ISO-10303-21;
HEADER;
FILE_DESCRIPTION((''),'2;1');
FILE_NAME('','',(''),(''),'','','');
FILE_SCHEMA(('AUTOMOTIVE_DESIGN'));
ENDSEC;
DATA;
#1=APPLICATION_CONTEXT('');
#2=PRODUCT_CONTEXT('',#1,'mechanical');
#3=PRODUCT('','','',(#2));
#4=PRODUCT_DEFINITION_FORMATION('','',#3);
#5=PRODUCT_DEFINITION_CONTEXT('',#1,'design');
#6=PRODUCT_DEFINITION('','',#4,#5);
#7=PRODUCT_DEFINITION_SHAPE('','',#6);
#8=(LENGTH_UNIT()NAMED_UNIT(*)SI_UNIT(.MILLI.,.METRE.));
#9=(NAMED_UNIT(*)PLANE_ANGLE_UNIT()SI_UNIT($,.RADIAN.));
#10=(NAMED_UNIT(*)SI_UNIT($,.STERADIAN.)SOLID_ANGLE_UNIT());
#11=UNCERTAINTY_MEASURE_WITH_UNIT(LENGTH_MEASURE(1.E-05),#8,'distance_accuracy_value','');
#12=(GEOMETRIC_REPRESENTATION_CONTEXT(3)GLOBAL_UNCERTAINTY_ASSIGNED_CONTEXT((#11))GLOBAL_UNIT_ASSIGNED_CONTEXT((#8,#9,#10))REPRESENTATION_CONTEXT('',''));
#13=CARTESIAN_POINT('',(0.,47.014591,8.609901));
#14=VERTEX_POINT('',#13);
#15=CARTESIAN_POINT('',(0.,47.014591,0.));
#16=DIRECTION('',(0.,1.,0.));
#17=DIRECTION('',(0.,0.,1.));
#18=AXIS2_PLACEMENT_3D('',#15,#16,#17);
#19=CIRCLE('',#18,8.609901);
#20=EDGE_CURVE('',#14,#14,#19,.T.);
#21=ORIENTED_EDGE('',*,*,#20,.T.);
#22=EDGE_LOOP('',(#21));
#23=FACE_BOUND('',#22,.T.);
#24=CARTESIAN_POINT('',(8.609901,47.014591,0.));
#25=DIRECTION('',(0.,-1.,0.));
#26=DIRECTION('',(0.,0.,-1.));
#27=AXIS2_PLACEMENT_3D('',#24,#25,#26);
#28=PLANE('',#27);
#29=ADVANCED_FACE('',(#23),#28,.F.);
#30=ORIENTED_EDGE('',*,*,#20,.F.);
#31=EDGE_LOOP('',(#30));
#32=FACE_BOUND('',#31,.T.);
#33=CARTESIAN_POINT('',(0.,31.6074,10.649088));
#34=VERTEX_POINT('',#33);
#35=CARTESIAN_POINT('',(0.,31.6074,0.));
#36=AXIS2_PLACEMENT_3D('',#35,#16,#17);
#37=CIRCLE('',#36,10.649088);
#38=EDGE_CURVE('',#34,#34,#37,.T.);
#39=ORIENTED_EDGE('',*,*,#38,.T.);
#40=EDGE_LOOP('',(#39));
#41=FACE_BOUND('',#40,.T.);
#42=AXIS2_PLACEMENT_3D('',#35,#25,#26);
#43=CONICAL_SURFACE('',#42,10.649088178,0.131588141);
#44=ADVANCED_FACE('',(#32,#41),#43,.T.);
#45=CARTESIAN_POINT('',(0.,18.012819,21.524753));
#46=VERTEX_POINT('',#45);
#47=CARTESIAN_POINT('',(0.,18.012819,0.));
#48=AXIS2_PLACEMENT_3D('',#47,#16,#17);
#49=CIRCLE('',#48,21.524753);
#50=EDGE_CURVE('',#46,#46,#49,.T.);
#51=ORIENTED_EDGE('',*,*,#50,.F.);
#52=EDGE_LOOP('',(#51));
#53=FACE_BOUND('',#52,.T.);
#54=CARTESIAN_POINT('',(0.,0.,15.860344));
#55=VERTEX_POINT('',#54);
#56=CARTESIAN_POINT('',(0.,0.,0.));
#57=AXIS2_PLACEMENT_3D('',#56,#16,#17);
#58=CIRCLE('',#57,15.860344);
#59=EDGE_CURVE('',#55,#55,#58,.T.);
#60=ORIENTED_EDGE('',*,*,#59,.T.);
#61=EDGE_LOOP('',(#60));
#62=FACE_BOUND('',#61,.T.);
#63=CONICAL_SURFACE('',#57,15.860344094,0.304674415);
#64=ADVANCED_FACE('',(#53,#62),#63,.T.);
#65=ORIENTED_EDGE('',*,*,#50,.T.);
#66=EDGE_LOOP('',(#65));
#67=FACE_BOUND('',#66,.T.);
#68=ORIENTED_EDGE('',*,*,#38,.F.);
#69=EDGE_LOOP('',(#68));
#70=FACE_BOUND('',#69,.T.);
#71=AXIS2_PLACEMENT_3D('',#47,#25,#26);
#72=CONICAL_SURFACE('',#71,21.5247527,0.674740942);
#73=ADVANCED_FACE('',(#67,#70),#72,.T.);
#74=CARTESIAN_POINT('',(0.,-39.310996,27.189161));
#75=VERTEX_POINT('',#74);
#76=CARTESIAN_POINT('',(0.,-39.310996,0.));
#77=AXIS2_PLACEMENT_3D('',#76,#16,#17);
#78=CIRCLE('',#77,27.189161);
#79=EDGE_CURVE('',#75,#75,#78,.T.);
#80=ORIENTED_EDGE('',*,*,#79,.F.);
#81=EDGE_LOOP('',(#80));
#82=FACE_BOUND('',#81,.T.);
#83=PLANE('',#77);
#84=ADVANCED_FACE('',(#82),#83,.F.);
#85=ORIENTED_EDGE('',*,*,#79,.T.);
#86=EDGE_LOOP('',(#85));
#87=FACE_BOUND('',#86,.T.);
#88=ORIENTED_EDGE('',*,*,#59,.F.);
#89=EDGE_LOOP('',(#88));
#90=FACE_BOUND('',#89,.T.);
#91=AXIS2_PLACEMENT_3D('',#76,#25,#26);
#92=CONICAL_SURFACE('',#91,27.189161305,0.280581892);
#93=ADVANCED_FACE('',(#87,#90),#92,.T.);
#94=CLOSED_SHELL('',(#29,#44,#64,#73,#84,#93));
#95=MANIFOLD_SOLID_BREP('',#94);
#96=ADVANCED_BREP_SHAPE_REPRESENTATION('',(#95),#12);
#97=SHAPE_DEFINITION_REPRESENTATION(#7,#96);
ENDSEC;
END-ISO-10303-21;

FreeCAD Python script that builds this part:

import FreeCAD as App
import Part
import Sketcher


def add_polygon(sketch, points):
    """Adds a closed chain of lines whose ends are joined by coincident constraints."""
    first, n = sketch.GeometryCount, len(points)
    for a, b in zip(points, points[1:] + points[:1]):
        sketch.addGeometry(Part.LineSegment(App.Vector(*a, 0), App.Vector(*b, 0)), False)
    for i in range(n):
        sketch.addConstraint(Sketcher.Constraint("Coincident", first + i, 2, first + (i + 1) % n, 1))

doc = App.newDocument("Part")
body = doc.addObject("PartDesign::Body", "Body")

# Sketch on XY plane
sketch1 = body.newObject("Sketcher::SketchObject", "Sketch")
sketch1.AttachmentSupport = (doc.getObject("XY_Plane"), [""])
sketch1.MapMode = "FlatFace"
add_polygon(sketch1, [(0, 47.014591), (0, -39.310996), (27.189161, -39.310996), (15.860344, 0), (21.524753, 18.012819), (10.649088, 31.6074), (8.609901, 47.014591)])  # lines 0-6
sketch1.addConstraint(Sketcher.Constraint("Vertical", 0))
sketch1.addConstraint(Sketcher.Constraint("Horizontal", 1))
sketch1.addConstraint(Sketcher.Constraint("Horizontal", 6))
sketch1.addConstraint(Sketcher.Constraint("PointOnObject", 0, 2, -2))
sketch1.addConstraint(Sketcher.Constraint("PointOnObject", 2, 2, -1))
sketch1.addConstraint(Sketcher.Constraint("DistanceX", 6, 2, 6, 1, 8.609901))
sketch1.addConstraint(Sketcher.Constraint("DistanceX", 1, 1, 1, 2, 27.189161))
sketch1.addConstraint(Sketcher.Constraint("DistanceY", -1, 1, 4, 2, 31.6074))
sketch1.addConstraint(Sketcher.Constraint("Distance", 5, 15.541552))
sketch1.addConstraint(Sketcher.Constraint("DistanceY", 0, 2, 0, 1, 86.325587))
sketch1.addConstraint(Sketcher.Constraint("DistanceY", -1, 1, 3, 2, 18.012819))
sketch1.addConstraint(Sketcher.Constraint("DistanceX", -1, 1, 4, 2, 10.649088))
sketch1.addConstraint(Sketcher.Constraint("DistanceX", 2, 2, 3, 2, 5.664409))
sketch1.addConstraint(Sketcher.Constraint("DistanceX", 3, 2, 1, 2, 5.664409))
revolution = body.newObject("PartDesign::Revolution", "Revolution")
revolution.Profile = sketch1
revolution.ReferenceAxis = (sketch1, ["V_Axis"])
revolution.Angle = 360

doc.recompute()
